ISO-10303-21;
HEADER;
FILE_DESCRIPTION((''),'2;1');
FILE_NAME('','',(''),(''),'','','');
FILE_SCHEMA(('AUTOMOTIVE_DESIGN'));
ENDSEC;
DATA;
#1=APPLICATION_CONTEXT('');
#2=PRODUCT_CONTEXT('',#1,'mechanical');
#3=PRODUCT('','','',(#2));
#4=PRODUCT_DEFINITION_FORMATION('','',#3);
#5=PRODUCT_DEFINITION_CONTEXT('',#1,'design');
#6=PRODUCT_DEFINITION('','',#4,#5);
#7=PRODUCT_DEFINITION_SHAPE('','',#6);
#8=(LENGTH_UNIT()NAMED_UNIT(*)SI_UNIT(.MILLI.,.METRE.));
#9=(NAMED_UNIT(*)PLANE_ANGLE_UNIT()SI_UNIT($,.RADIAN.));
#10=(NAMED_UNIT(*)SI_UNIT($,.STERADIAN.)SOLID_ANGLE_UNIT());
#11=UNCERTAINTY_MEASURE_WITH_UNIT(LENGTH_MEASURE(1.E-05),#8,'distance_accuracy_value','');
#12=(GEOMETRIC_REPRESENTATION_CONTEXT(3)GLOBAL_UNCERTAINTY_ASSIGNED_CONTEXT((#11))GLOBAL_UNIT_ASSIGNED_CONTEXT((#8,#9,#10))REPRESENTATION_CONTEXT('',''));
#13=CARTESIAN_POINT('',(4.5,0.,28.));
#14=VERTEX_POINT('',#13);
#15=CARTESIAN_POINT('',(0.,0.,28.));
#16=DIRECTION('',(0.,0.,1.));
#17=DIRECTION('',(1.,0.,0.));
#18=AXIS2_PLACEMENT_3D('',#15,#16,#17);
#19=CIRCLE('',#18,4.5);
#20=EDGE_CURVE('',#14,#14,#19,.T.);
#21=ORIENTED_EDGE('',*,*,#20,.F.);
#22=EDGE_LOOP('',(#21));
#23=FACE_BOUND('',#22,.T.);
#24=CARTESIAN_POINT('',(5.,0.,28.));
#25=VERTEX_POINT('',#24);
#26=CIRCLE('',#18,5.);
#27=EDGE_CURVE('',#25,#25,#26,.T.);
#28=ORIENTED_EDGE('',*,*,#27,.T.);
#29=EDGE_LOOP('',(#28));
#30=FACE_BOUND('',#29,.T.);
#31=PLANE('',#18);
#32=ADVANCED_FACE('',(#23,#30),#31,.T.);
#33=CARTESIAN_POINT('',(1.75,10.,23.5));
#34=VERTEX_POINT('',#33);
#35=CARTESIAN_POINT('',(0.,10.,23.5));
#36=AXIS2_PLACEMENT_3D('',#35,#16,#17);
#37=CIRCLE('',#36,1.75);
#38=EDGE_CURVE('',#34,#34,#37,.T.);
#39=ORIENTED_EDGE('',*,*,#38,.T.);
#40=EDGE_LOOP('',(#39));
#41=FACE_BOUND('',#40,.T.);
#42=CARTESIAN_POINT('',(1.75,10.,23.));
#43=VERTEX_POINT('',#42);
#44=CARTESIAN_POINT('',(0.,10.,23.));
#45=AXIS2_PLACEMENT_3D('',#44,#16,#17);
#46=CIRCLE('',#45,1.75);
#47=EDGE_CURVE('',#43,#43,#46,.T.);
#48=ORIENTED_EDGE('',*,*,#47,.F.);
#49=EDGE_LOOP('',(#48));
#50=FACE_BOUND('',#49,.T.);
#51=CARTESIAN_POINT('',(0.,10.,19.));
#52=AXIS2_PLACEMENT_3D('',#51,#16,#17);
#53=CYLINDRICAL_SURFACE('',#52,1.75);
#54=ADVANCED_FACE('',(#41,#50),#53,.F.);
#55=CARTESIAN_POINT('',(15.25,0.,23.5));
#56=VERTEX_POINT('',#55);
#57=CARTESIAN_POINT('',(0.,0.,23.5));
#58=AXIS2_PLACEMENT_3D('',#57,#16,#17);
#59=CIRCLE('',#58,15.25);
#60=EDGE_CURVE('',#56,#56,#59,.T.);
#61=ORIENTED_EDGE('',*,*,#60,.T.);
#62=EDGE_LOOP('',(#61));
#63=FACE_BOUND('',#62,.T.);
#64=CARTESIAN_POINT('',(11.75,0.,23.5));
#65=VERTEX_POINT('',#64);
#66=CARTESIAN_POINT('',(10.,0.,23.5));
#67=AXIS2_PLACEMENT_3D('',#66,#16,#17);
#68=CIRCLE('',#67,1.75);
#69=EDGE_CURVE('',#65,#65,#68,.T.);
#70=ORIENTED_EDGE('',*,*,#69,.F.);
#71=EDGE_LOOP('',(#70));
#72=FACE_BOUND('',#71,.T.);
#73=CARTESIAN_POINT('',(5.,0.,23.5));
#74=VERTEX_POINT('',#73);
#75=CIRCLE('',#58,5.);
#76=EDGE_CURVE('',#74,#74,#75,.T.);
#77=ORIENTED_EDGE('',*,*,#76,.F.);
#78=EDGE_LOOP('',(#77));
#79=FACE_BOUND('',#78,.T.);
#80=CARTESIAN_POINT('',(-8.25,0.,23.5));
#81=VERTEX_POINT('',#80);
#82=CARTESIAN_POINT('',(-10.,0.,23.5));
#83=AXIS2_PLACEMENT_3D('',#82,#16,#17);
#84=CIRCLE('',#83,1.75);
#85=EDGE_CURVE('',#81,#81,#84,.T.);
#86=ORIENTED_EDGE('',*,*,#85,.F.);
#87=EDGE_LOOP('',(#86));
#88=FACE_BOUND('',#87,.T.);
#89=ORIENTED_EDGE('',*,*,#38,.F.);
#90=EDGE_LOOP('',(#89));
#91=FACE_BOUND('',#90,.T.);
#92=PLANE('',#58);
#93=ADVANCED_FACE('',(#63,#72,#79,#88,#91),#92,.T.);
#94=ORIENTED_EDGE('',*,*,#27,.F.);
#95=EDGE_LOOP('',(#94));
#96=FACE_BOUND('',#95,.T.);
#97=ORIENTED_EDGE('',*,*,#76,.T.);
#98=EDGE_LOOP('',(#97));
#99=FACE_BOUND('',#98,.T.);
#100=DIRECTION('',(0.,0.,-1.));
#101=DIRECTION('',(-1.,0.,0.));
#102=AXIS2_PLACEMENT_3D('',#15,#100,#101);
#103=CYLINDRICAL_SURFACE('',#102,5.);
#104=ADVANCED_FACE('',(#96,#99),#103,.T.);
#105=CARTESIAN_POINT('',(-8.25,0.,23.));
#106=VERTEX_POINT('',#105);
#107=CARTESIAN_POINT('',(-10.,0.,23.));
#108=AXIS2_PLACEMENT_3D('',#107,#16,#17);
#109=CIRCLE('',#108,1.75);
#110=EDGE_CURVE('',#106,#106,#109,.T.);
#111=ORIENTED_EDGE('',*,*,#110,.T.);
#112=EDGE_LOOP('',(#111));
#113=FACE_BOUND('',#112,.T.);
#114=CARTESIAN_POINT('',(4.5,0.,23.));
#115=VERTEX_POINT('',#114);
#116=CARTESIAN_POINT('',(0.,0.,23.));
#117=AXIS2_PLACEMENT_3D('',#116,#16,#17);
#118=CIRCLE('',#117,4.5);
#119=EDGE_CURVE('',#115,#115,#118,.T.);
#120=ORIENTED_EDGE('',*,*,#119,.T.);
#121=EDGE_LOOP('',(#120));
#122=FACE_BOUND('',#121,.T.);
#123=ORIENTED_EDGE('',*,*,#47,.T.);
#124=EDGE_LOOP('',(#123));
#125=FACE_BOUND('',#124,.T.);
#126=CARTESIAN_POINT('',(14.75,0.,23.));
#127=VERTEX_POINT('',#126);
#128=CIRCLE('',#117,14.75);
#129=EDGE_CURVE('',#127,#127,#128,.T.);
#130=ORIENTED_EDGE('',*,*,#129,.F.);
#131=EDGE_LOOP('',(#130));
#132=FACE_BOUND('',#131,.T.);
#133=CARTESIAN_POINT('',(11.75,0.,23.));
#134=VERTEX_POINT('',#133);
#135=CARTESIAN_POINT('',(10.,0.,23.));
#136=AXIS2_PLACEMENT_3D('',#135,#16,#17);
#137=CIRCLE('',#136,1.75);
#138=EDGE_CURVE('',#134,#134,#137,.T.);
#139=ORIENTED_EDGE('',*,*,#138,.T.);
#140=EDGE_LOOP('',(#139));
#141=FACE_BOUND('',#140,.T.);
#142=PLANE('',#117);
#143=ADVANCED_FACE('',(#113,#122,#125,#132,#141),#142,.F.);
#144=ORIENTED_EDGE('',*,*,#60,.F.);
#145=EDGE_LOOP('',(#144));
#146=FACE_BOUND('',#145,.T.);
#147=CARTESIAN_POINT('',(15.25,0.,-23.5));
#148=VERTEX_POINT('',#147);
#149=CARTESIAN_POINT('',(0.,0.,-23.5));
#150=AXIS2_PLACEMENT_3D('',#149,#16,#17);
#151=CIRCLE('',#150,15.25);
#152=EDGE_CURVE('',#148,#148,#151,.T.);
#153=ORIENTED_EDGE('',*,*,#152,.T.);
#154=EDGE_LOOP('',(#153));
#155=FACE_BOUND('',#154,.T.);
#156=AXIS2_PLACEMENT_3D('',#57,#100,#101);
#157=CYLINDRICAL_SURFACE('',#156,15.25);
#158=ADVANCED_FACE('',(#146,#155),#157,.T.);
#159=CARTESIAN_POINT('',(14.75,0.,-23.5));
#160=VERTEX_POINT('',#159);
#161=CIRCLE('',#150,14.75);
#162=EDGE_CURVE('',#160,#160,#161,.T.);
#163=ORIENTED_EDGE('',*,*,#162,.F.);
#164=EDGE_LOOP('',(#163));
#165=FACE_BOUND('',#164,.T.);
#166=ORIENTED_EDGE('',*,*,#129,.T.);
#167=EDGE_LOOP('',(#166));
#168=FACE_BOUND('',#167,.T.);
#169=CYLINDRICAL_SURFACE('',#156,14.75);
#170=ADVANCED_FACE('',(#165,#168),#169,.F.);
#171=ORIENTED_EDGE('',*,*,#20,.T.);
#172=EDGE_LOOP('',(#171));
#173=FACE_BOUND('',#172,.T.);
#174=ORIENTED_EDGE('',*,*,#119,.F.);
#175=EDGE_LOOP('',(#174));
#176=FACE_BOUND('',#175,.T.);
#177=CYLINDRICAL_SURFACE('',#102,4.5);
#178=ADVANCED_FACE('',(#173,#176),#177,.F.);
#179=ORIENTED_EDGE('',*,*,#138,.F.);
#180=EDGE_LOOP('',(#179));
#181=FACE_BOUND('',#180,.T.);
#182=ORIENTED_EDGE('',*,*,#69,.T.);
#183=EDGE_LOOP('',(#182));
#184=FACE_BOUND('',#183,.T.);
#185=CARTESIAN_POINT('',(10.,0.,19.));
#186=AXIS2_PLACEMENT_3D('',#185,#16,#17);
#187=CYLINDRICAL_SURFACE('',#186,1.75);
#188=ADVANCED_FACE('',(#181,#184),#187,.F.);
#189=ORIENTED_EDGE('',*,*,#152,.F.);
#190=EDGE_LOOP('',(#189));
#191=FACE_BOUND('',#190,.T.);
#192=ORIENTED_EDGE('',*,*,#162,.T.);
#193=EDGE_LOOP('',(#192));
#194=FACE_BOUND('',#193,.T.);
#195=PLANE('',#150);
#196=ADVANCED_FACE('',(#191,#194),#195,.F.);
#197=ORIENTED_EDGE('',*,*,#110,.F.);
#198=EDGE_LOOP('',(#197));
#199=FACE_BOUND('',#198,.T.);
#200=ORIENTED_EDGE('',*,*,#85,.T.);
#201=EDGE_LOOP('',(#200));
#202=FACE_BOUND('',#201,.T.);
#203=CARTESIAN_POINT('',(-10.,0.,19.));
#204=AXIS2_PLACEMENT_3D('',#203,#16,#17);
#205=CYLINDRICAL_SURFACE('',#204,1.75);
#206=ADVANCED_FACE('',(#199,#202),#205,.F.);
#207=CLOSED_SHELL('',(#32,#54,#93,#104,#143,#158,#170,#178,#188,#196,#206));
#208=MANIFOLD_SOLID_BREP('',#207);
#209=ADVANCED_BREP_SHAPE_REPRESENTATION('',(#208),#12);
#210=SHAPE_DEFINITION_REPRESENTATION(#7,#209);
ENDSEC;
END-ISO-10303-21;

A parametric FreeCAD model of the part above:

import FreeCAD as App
import Part
import Sketcher
from FreeCAD import Vector


def faces_at(feature, points):
    """Names of the faces that lie closest to the given points."""
    faces = feature.Shape.Faces
    near = lambda p: min(range(len(faces)), key=lambda i: faces[i].distToShape(Part.Vertex(*p))[0])
    return sorted({f"Face{near(p) + 1}" for p in points})

doc = App.newDocument("Part")
body = doc.addObject("PartDesign::Body", "Body")

sketch1 = body.newObject("Sketcher::SketchObject", "Sketch")
sketch1.AttachmentSupport = (doc.getObject("XY_Plane"), [""])
sketch1.MapMode = "FlatFace"
sketch1.addGeometry(Part.Circle(Vector(0, 0, 0), Vector(0, 0, 1), 15), False)
sketch1.addConstraint(Sketcher.Constraint("Coincident", 0, 3, -1, 1))
sketch1.addConstraint(Sketcher.Constraint("Diameter", 0, 30.5))
pad1 = body.newObject("PartDesign::Pad", "Pad")
pad1.Profile = sketch1
pad1.Length = 47
pad1.Midplane = True

sketch2 = body.newObject("Sketcher::SketchObject", "Sketch001")
sketch2.AttachmentSupport = (doc.getObject("XY_Plane"), [""])
sketch2.MapMode = "FlatFace"
sketch2.AttachmentOffset = App.Placement(Vector(0, 0, 23.5), App.Rotation())
sketch2.addGeometry(Part.Circle(Vector(0, 0, 0), Vector(0, 0, 1), 5), False)
sketch2.addConstraint(Sketcher.Constraint("Coincident", 0, 3, -1, 1))
sketch2.addConstraint(Sketcher.Constraint("Diameter", 0, 10.0))
pad2 = body.newObject("PartDesign::Pad", "Pad001")
pad2.Profile = sketch2
pad2.Length = 4.5
doc.recompute()

thickness = body.newObject("PartDesign::Thickness", "Thickness")
thickness.Base = (pad2, faces_at(pad2, [(0, 0, -23.5), (0, 0, 28)]))
thickness.Value = 0.5
thickness.Reversed = True
thickness.Join = "Intersection"

sketch3 = body.newObject("Sketcher::SketchObject", "Sketch002")
sketch3.AttachmentSupport = (doc.getObject("XY_Plane"), [""])
sketch3.MapMode = "FlatFace"
sketch3.AttachmentOffset = App.Placement(Vector(0, 0, 23.5), App.Rotation())
sketch3.addGeometry(Part.Circle(Vector(-10, 0, 0), Vector(0, 0, 1), 1.8), False)
sketch3.addGeometry(Part.Circle(Vector(0, 10, 0), Vector(0, 0, 1), 1.8), False)
sketch3.addGeometry(Part.Circle(Vector(10, 0, 0), Vector(0, 0, 1), 1.8), False)
sketch3.addConstraint(Sketcher.Constraint("Equal", 0, 1))
sketch3.addConstraint(Sketcher.Constraint("Equal", 1, 2))
sketch3.addConstraint(Sketcher.Constraint("Symmetric", 0, 3, 2, 3, -1, 1))
sketch3.addConstraint(Sketcher.Constraint("PointOnObject", 0, 3, -1))
sketch3.addConstraint(Sketcher.Constraint("PointOnObject", 1, 3, -2))
sketch3.addConstraint(Sketcher.Constraint("Diameter", 0, 3.5))
sketch3.addConstraint(Sketcher.Constraint("DistanceX", 0, 3, -1, 1, 10.0))
sketch3.addConstraint(Sketcher.Constraint("DistanceY", -1, 1, 1, 3, 10.0))
pocket1 = body.newObject("PartDesign::Pocket", "Pocket")
pocket1.Profile = sketch3
pocket1.Length = 4.5

doc.recompute()
